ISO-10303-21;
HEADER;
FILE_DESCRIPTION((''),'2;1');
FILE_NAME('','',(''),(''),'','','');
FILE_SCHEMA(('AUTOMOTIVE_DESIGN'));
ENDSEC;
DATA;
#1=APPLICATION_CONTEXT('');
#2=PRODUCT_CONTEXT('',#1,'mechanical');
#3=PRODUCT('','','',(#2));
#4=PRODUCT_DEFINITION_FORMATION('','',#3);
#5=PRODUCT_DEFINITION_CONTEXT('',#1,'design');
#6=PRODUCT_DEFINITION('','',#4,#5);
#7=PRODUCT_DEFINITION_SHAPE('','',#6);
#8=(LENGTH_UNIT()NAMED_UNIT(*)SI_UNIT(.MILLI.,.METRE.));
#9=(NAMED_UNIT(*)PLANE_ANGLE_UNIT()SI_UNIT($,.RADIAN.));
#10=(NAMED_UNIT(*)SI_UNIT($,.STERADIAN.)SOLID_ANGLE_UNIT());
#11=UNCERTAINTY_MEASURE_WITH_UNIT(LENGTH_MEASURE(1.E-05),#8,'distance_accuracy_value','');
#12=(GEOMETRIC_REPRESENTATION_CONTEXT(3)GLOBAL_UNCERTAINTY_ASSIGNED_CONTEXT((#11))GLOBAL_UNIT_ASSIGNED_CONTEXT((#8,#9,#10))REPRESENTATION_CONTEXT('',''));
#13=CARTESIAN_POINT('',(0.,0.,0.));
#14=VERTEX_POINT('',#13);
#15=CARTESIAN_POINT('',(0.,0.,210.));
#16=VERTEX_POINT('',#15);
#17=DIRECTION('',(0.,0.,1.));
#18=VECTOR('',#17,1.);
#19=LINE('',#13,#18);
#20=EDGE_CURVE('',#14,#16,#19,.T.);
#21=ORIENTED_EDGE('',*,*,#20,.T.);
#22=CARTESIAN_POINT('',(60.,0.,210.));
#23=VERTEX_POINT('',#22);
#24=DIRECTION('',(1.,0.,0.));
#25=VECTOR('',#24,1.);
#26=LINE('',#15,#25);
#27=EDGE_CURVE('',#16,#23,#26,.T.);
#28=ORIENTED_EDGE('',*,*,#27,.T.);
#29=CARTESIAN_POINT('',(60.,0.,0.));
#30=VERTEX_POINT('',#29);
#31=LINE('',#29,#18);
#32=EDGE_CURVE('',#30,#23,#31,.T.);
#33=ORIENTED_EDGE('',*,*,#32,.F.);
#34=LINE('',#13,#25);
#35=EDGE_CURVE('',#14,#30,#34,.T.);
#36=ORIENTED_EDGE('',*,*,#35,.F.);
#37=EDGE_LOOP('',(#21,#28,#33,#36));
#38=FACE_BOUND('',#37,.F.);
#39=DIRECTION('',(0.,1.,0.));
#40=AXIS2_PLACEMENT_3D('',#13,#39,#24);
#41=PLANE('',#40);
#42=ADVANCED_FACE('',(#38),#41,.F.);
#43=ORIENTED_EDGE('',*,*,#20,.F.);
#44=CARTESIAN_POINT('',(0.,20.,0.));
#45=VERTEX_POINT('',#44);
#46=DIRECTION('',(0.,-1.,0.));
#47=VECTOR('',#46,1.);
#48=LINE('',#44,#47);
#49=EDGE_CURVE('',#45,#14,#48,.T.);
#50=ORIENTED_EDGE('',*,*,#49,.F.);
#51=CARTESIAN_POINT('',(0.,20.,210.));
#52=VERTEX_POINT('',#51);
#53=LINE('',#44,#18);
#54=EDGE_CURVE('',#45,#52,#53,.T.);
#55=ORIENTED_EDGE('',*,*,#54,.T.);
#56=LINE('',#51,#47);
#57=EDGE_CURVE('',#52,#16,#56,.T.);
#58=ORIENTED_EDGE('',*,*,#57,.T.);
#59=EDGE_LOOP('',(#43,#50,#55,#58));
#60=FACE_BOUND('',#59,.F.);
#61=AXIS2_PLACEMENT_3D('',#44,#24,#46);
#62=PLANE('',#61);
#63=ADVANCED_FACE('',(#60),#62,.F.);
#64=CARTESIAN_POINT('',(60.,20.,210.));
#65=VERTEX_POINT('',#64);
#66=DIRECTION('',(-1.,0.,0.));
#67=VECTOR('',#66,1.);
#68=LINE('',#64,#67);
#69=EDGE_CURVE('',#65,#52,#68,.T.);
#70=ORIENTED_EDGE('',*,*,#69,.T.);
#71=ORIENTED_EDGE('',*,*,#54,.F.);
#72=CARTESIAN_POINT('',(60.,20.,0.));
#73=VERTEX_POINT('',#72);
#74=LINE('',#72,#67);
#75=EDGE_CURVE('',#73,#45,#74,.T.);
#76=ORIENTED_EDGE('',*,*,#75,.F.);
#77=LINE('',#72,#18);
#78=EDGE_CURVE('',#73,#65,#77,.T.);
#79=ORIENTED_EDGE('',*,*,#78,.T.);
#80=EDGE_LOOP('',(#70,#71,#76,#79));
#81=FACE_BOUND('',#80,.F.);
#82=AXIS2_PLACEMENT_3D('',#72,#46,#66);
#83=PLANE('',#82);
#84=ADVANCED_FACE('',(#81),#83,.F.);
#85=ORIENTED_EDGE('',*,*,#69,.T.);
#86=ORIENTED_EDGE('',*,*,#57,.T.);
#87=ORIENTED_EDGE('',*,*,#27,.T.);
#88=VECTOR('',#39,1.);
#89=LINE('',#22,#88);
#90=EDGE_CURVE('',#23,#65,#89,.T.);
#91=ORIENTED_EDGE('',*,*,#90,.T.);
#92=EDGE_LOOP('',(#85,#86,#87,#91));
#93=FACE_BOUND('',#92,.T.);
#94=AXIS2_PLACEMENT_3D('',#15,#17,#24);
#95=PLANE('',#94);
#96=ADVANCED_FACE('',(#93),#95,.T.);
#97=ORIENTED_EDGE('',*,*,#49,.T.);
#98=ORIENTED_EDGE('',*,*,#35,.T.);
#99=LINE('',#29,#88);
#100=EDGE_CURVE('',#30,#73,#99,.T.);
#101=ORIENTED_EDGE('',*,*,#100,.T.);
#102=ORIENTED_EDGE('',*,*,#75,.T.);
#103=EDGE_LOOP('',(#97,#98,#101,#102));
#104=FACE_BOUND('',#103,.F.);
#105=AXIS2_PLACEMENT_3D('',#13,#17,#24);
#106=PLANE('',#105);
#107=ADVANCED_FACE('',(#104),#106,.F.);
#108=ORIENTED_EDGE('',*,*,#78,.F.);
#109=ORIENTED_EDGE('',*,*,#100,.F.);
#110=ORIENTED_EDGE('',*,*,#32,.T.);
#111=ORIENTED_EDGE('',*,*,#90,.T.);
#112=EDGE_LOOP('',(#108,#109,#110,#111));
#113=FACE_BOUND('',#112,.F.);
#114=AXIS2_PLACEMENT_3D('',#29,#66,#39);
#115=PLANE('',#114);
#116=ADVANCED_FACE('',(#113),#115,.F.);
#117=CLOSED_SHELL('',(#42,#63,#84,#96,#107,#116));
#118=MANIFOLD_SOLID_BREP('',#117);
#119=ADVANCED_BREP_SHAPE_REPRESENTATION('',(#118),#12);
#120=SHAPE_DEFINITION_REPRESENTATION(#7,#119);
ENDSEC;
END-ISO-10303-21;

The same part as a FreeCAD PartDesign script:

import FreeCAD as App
import Part
import Sketcher
from FreeCAD import Vector

doc = App.newDocument("Part")
params = doc.addObject("Spreadsheet::Sheet", "Params")
for row, (alias, value) in enumerate([
    ("sketch1_width", "60 mm"),
    ("sketch1_height", "20 mm"),
    ("pad1_length", "210 mm"),
], start=1):
    params.set(f"A{row}", alias)
    params.set(f"B{row}", "=" + value)
    params.setAlias(f"B{row}", alias)

body = doc.addObject("PartDesign::Body", "Body")

sketch1 = body.newObject("Sketcher::SketchObject", "Sketch")
sketch1.AttachmentSupport = (doc.getObject("XY_Plane"), [""])
sketch1.MapMode = "FlatFace"
sketch1.addGeometry(Part.LineSegment(Vector(0, 20, 0), Vector(0, 0, 0)), False)
sketch1.addGeometry(Part.LineSegment(Vector(0, 0, 0), Vector(60, 0, 0)), False)
sketch1.addGeometry(Part.LineSegment(Vector(60, 0, 0), Vector(60, 20, 0)), False)
sketch1.addGeometry(Part.LineSegment(Vector(60, 20, 0), Vector(0, 20, 0)), False)
sketch1.addConstraint(Sketcher.Constraint("Coincident", 0, 2, 1, 1))
sketch1.addConstraint(Sketcher.Constraint("Coincident", 1, 2, 2, 1))
sketch1.addConstraint(Sketcher.Constraint("Coincident", 2, 2, 3, 1))
sketch1.addConstraint(Sketcher.Constraint("Coincident", 3, 2, 0, 1))
sketch1.addConstraint(Sketcher.Constraint("Vertical", 0))
sketch1.addConstraint(Sketcher.Constraint("Horizontal", 1))
sketch1.addConstraint(Sketcher.Constraint("Vertical", 2))
sketch1.addConstraint(Sketcher.Constraint("Horizontal", 3))
sketch1.addConstraint(Sketcher.Constraint("Coincident", 0, 2, -1, 1))
sketch1.addConstraint(Sketcher.Constraint("DistanceX", 1, 1, 1, 2, 60.0))
sketch1.addConstraint(Sketcher.Constraint("DistanceY", 0, 2, 0, 1, 20.0))
sketch1.setExpression("Constraints[9]", "Params.sketch1_width")
sketch1.setExpression("Constraints[10]", "Params.sketch1_height")
pad1 = body.newObject("PartDesign::Pad", "Pad")
pad1.Profile = sketch1
pad1.setExpression("Length", "Params.pad1_length")

doc.recompute()
